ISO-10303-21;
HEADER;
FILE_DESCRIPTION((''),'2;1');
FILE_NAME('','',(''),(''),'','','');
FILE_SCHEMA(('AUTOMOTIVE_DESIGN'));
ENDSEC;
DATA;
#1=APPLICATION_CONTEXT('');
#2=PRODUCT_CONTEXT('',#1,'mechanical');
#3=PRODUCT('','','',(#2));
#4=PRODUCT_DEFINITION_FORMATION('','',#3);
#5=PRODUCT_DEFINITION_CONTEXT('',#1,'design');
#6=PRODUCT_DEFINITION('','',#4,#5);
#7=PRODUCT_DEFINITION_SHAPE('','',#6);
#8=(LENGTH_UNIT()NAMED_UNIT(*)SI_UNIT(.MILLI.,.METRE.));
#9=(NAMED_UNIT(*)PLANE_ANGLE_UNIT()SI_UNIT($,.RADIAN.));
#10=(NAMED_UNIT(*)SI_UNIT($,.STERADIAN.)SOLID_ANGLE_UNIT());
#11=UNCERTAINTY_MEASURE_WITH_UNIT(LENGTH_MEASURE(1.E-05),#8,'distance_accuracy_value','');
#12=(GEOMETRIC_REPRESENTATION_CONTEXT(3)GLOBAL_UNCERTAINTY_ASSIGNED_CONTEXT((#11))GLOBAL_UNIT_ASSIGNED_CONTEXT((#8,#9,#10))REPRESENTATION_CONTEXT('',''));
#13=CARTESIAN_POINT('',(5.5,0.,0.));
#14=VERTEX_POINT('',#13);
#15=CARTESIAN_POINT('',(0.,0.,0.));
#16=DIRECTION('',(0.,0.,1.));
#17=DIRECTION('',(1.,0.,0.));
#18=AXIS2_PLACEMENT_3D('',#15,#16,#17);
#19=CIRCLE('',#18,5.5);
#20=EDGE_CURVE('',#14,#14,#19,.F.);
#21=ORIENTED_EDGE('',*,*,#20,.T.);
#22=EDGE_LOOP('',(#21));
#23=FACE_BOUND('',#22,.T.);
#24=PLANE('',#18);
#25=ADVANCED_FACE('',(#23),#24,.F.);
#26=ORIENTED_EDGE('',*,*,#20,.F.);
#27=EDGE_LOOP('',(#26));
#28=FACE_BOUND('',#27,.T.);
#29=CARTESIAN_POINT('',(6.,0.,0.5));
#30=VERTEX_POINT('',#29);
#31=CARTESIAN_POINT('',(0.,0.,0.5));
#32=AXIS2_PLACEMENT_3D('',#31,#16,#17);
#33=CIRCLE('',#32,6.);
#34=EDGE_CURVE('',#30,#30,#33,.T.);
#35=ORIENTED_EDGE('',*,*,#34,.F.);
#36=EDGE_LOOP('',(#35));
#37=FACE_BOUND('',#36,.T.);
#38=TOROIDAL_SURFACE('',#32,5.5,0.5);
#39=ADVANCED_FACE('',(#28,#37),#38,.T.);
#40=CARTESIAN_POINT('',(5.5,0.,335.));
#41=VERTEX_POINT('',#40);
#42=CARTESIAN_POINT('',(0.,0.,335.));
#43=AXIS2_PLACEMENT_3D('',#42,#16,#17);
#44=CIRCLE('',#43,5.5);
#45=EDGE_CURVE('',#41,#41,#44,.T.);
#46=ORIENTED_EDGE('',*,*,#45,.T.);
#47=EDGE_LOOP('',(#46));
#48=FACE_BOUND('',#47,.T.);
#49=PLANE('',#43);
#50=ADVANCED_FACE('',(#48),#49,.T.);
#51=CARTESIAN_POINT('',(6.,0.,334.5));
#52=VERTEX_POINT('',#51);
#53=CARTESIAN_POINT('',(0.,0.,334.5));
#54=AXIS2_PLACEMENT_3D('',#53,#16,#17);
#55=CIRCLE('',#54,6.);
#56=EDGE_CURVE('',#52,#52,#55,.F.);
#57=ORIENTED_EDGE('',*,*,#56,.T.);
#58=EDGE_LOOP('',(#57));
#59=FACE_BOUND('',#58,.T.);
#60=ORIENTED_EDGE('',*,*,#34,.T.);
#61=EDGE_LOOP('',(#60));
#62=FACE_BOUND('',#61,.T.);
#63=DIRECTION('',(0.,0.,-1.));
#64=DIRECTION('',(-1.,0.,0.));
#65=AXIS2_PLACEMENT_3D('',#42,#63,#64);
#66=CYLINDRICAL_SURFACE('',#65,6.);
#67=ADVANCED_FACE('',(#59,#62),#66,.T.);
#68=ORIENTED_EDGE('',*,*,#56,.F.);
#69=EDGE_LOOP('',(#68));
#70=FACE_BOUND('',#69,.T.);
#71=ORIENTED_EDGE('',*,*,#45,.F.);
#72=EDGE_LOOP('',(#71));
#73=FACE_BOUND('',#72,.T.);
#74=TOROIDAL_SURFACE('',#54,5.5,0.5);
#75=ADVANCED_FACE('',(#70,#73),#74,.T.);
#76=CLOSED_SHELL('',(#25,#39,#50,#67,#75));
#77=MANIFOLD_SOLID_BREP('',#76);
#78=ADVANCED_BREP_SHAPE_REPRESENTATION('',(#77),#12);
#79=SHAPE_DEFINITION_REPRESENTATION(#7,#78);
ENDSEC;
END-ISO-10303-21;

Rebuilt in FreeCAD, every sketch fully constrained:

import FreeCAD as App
import Part
import Sketcher
from FreeCAD import Vector


def edges_at(feature, points):
    """Names of the edges that pass closest to the given points."""
    edges = feature.Shape.Edges
    near = lambda p: min(range(len(edges)), key=lambda i: edges[i].distToShape(Part.Vertex(*p))[0])
    return sorted({f"Edge{near(p) + 1}" for p in points})

doc = App.newDocument("Part")
params = doc.addObject("Spreadsheet::Sheet", "Params")
for row, (alias, value) in enumerate([
    ("sketch1_diameter", "12 mm"),
    ("pad1_length", "335 mm"),
    ("fillet_radius", "0.5 mm"),
], start=1):
    params.set(f"A{row}", alias)
    params.set(f"B{row}", "=" + value)
    params.setAlias(f"B{row}", alias)

body = doc.addObject("PartDesign::Body", "Body")

sketch1 = doc.addObject("Sketcher::SketchObject", "Sketch")
body.addObject(sketch1)
sketch1.AttachmentSupport = (doc.XY_Plane, [""])
sketch1.MapMode = "FlatFace"
sketch1.addGeometry(Part.Circle(Vector(0, 0, 0), Vector(0, 0, 1), 6), False)
sketch1.addConstraint(Sketcher.Constraint("Coincident", 0, 3, -1, 1))
sketch1.addConstraint(Sketcher.Constraint("Diameter", 0, 12.0))
sketch1.setExpression("Constraints[1]", "Params.sketch1_diameter")
pad1 = doc.addObject("PartDesign::Pad", "Pad")
body.addObject(pad1)
pad1.Profile = sketch1
pad1.setExpression("Length", "Params.pad1_length")
doc.recompute()

fillet = doc.addObject("PartDesign::Fillet", "Fillet")
body.addObject(fillet)
fillet.Base = (pad1, edges_at(pad1, [(-6, 0, 0), (-6, 0, 335)]))
fillet.setExpression("Radius", "Params.fillet_radius")

doc.recompute()
